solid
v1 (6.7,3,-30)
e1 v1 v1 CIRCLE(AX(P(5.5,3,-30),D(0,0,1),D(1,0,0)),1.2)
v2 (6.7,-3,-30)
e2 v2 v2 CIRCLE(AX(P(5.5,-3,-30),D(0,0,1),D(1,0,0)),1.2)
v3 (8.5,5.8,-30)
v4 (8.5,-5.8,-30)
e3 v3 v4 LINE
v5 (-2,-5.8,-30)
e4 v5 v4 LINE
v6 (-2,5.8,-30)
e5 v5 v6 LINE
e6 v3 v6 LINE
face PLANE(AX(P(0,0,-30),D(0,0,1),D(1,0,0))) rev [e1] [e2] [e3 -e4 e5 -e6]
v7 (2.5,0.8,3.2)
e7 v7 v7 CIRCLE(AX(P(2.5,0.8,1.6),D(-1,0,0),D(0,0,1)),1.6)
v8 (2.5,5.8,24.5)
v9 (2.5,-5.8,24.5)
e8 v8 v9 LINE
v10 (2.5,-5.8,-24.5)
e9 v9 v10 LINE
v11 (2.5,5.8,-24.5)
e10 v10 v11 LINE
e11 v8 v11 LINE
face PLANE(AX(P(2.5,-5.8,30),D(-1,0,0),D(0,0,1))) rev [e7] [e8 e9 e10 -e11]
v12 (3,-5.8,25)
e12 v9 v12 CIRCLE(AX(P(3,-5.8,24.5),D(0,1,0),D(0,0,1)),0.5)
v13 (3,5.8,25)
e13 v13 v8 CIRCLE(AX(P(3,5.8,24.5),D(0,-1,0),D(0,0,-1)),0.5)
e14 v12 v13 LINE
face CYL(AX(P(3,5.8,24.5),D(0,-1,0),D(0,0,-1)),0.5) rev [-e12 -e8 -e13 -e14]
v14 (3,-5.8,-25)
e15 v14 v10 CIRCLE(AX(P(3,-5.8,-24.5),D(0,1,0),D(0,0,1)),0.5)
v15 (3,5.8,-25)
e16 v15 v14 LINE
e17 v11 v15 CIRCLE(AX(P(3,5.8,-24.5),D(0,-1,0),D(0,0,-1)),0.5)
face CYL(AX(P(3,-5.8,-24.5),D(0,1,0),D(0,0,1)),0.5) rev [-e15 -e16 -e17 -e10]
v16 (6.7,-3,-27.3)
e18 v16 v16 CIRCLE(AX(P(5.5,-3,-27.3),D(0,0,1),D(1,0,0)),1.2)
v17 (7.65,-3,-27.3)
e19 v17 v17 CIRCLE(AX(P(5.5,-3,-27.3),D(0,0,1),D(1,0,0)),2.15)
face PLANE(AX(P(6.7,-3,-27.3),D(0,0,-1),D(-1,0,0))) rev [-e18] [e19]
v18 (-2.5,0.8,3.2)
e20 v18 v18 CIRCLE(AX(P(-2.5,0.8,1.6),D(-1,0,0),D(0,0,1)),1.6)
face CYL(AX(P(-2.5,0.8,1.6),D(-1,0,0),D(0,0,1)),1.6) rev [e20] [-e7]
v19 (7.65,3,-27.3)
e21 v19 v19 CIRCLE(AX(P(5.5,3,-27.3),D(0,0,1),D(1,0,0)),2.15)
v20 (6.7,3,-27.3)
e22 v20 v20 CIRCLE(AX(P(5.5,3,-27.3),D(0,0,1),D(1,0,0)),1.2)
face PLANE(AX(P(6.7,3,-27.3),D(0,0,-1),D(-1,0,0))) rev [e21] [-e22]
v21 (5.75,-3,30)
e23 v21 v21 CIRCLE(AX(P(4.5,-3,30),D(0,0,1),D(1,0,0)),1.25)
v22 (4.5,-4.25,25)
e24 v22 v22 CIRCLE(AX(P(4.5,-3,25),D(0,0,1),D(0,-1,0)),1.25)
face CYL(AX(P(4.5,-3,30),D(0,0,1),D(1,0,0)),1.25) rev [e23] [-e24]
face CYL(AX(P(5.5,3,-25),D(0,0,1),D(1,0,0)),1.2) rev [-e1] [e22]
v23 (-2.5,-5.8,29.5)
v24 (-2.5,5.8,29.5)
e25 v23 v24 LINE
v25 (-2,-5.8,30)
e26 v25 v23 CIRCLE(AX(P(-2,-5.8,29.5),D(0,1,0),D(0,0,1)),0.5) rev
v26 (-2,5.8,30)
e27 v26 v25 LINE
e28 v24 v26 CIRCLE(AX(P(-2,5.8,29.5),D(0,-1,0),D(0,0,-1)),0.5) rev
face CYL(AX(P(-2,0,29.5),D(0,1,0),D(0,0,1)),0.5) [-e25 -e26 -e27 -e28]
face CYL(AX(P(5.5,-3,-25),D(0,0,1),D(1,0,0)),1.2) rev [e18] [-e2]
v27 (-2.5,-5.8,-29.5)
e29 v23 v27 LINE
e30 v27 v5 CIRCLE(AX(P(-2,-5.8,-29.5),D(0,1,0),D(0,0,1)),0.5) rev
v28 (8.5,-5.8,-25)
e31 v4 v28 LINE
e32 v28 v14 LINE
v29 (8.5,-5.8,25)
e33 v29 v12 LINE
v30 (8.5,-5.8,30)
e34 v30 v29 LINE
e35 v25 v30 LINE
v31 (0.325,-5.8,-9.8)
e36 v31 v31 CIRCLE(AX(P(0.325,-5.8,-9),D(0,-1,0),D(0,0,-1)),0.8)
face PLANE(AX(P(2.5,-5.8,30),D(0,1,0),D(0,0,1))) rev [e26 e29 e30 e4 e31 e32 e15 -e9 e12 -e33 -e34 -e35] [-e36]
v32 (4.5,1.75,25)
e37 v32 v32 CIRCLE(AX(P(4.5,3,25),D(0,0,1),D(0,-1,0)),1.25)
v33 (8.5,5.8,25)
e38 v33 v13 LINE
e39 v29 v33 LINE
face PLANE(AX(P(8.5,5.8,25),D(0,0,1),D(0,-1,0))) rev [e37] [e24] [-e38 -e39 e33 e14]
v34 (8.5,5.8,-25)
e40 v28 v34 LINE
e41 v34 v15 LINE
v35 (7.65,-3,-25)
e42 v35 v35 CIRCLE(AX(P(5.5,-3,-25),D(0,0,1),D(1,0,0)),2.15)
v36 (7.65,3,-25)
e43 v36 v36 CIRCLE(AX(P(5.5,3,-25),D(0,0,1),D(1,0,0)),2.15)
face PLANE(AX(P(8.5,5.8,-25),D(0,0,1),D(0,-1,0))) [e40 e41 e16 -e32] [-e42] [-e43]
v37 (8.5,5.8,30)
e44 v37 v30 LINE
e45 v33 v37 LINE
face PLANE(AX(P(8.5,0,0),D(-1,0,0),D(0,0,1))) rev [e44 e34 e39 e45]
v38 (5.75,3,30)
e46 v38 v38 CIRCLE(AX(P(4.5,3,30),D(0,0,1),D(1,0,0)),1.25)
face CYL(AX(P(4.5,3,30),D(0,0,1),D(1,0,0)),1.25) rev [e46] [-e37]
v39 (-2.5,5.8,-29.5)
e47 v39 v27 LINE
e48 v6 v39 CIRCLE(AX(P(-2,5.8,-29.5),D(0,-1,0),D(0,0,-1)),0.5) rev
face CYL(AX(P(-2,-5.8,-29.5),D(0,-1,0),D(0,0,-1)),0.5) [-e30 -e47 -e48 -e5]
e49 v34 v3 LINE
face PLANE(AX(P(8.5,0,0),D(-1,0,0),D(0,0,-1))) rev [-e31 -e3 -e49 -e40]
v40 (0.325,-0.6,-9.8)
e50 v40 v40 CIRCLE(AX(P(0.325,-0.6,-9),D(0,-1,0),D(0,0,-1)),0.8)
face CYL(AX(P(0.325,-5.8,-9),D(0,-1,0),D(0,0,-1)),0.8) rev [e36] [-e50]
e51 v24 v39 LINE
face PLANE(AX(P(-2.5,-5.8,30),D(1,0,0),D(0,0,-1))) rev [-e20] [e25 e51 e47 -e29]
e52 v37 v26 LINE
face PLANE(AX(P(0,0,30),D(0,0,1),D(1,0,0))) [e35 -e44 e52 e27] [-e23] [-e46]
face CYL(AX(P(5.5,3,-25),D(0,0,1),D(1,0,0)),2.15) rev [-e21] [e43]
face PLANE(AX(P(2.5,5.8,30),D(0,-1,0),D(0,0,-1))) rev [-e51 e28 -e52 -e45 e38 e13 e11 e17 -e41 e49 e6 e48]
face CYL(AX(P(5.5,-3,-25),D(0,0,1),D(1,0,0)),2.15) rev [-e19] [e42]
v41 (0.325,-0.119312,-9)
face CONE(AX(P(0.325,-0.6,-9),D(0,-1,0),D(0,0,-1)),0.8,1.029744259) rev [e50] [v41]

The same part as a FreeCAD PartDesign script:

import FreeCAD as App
import Part
import Sketcher
from FreeCAD import Vector


def edges_at(feature, points):
    """Names of the edges that pass closest to the given points."""
    edges = feature.Shape.Edges
    near = lambda p: min(range(len(edges)), key=lambda i: edges[i].distToShape(Part.Vertex(*p))[0])
    return sorted({f"Edge{near(p) + 1}" for p in points})

doc = App.newDocument("Part")
body = doc.addObject("PartDesign::Body", "Body")

sketch1 = body.newObject("Sketcher::SketchObject", "Sketch")
sketch1.AttachmentSupport = (doc.getObject("XY_Plane"), [""])
sketch1.MapMode = "FlatFace"
sketch1.addGeometry([
    Part.LineSegment(Vector(-2, 6, 0), Vector(-2, -6, 0)),
    Part.LineSegment(Vector(-2, -6, 0), Vector(2, -6, 0)),
    Part.LineSegment(Vector(2, -6, 0), Vector(2, 6, 0)),
    Part.LineSegment(Vector(2, 6, 0), Vector(-2, 6, 0)),
], False)
sketch1.addConstraint([
    Sketcher.Constraint("Coincident", 0, 2, 1, 1),
    Sketcher.Constraint("Coincident", 1, 2, 2, 1),
    Sketcher.Constraint("Coincident", 2, 2, 3, 1),
    Sketcher.Constraint("Coincident", 3, 2, 0, 1),
    Sketcher.Constraint("Vertical", 0),
    Sketcher.Constraint("Horizontal", 1),
    Sketcher.Constraint("Vertical", 2),
    Sketcher.Constraint("Horizontal", 3),
    Sketcher.Constraint("Symmetric", 0, 2, 2, 2, -1, 1),
    Sketcher.Constraint("DistanceX", 1, 1, 1, 2, 5.0),
    Sketcher.Constraint("DistanceY", 0, 2, 0, 1, 11.6),
])
pad1 = body.newObject("PartDesign::Pad", "Pad")
pad1.Profile = sketch1
pad1.Length = 60
pad1.Midplane = True

sketch2 = body.newObject("Sketcher::SketchObject", "Sketch001")
sketch2.AttachmentSupport = (doc.getObject("YZ_Plane"), [""])
sketch2.MapMode = "FlatFace"
sketch2.AttachmentOffset = App.Placement(Vector(0, 0, 2.5), App.Rotation())
sketch2.addGeometry([
    Part.LineSegment(Vector(6, 30, 0), Vector(-6, 30, 0)),
    Part.LineSegment(Vector(-6, 30, 0), Vector(-6, 25, 0)),
    Part.LineSegment(Vector(-6, 25, 0), Vector(6, 25, 0)),
    Part.LineSegment(Vector(6, 25, 0), Vector(6, 30, 0)),
], False)
sketch2.addConstraint([
    Sketcher.Constraint("Coincident", 0, 2, 1, 1),
    Sketcher.Constraint("Coincident", 1, 2, 2, 1),
    Sketcher.Constraint("Coincident", 2, 2, 3, 1),
    Sketcher.Constraint("Coincident", 3, 2, 0, 1),
    Sketcher.Constraint("Horizontal", 0),
    Sketcher.Constraint("Vertical", 1),
    Sketcher.Constraint("Horizontal", 2),
    Sketcher.Constraint("Vertical", 3),
    Sketcher.Constraint("DistanceY", 1, 2, 1, 1, 5.0),
    Sketcher.Constraint("DistanceX", 0, 2, 0, 1, 11.6),
    Sketcher.Constraint("DistanceY", -1, 1, 0, 2, 30.0),
    Sketcher.Constraint("DistanceX", 0, 2, -1, 1, 5.8),
])
pad2 = body.newObject("PartDesign::Pad", "Pad001")
pad2.Profile = sketch2
pad2.Length = 6
doc.recompute()

mirrored = body.newObject("PartDesign::Mirrored", "Mirrored")
mirrored.Originals = [pad2]
mirrored.MirrorPlane = (doc.getObject("XY_Plane"), [""])
body.Tip = mirrored

sketch3 = body.newObject("Sketcher::SketchObject", "Sketch002")
sketch3.AttachmentSupport = (doc.getObject("XY_Plane"), [""])
sketch3.MapMode = "FlatFace"
sketch3.AttachmentOffset = App.Placement(Vector(0, 0, 30), App.Rotation())
sketch3.addGeometry([
    Part.Circle(Vector(4.5, -3, 0), Vector(0, 0, 1), 1.2),
    Part.Circle(Vector(4.5, 3, 0), Vector(0, 0, 1), 1.2),
], False)
sketch3.addConstraint([
    Sketcher.Constraint("Equal", 0, 1),
    Sketcher.Constraint("Symmetric", 0, 3, 1, 3, -1),
    Sketcher.Constraint("Diameter", 0, 2.5),
    Sketcher.Constraint("DistanceY", 0, 3, -1, 1, 3.0),
    Sketcher.Constraint("DistanceX", -1, 1, 0, 3, 4.5),
])
doc.recompute()
hole = body.newObject("PartDesign::Hole", "Hole")
hole.Profile = sketch3
hole.ThreadType = "None"
hole.Diameter = 2.5
hole.DepthType = "Dimension"
hole.Depth = 7.5
hole.DrillPoint = "Angled"
hole.DrillPointAngle = 118

sketch4 = body.newObject("Sketcher::SketchObject", "Sketch003")
sketch4.AttachmentSupport = (doc.getObject("XY_Plane"), [""])
sketch4.MapMode = "FlatFace"
sketch4.AttachmentOffset = App.Placement(Vector(0, 0, -25), App.Rotation())
sketch4.addGeometry([
    Part.Circle(Vector(5.5, -3, 0), Vector(0, 0, 1), 1.2),
    Part.Circle(Vector(5.5, 3, 0), Vector(0, 0, 1), 1.2),
], False)
sketch4.addConstraint([
    Sketcher.Constraint("Equal", 0, 1),
    Sketcher.Constraint("Symmetric", 0, 3, 1, 3, -1),
    Sketcher.Constraint("Diameter", 0, 2.4),
    Sketcher.Constraint("DistanceY", 0, 3, -1, 1, 3.0),
    Sketcher.Constraint("DistanceX", -1, 1, 0, 3, 5.5),
])
doc.recompute()
hole2 = body.newObject("PartDesign::Hole", "Hole001")
hole2.Profile = sketch4
hole2.ThreadType = "None"
hole2.Diameter = 2.4
hole2.DepthType = "Dimension"
hole2.Depth = 7.5
hole2.DrillPoint = "Angled"
hole2.DrillPointAngle = 118
hole2.HoleCutType = "Counterbore"
hole2.HoleCutDiameter = 4.3
hole2.HoleCutDepth = 2.3
doc.recompute()

fillet = body.newObject("PartDesign::Fillet", "Fillet")
fillet.Base = (hole2, edges_at(hole2, [
    (2.5, 0, 25),
    (2.5, 0, -25),
    (-2.5, 0, 30),
    (-2.5, 0, -30),
]))
fillet.Radius = 0.5

sketch5 = body.newObject("Sketcher::SketchObject", "Sketch004")
sketch5.AttachmentSupport = (doc.getObject("YZ_Plane"), [""])
sketch5.MapMode = "FlatFace"
sketch5.AttachmentOffset = App.Placement(Vector(0, 0, -2.5), App.Rotation())
sketch5.addGeometry(Part.Circle(Vector(0.8, 1.6, 0), Vector(0, 0, 1), 1.6), False)
sketch5.addConstraint([
    Sketcher.Constraint("Diameter", 0, 3.2),
    Sketcher.Constraint("DistanceX", -1, 1, 0, 3, 0.8),
    Sketcher.Constraint("DistanceY", -1, 1, 0, 3, 1.6),
])
doc.recompute()
hole3 = body.newObject("PartDesign::Hole", "Hole002")
hole3.Profile = sketch5
hole3.ThreadType = "None"
hole3.Diameter = 3.2
hole3.DepthType = "Dimension"
hole3.Depth = 5.2
hole3.DrillPoint = "Angled"
hole3.DrillPointAngle = 118
hole3.Reversed = True

sketch6 = body.newObject("Sketcher::SketchObject", "Sketch005")
sketch6.AttachmentSupport = (doc.getObject("XZ_Plane"), [""])
sketch6.MapMode = "FlatFace"
sketch6.AttachmentOffset = App.Placement(Vector(0, 0, 5.8), App.Rotation())
sketch6.addGeometry(Part.Circle(Vector(0.3, -9, 0), Vector(0, 0, 1), 0.8), False)
sketch6.addConstraint([
    Sketcher.Constraint("Diameter", 0, 1.6),
    Sketcher.Constraint("DistanceY", 0, 3, -1, 1, 9.0),
    Sketcher.Constraint("DistanceX", -1, 1, 0, 3, 0.325),
])
doc.recompute()
hole4 = body.newObject("PartDesign::Hole", "Hole003")
hole4.Profile = sketch6
hole4.ThreadType = "None"
hole4.Diameter = 1.6
hole4.DepthType = "Dimension"
hole4.Depth = 5.2
hole4.DrillPoint = "Angled"
hole4.DrillPointAngle = 118

doc.recompute()
